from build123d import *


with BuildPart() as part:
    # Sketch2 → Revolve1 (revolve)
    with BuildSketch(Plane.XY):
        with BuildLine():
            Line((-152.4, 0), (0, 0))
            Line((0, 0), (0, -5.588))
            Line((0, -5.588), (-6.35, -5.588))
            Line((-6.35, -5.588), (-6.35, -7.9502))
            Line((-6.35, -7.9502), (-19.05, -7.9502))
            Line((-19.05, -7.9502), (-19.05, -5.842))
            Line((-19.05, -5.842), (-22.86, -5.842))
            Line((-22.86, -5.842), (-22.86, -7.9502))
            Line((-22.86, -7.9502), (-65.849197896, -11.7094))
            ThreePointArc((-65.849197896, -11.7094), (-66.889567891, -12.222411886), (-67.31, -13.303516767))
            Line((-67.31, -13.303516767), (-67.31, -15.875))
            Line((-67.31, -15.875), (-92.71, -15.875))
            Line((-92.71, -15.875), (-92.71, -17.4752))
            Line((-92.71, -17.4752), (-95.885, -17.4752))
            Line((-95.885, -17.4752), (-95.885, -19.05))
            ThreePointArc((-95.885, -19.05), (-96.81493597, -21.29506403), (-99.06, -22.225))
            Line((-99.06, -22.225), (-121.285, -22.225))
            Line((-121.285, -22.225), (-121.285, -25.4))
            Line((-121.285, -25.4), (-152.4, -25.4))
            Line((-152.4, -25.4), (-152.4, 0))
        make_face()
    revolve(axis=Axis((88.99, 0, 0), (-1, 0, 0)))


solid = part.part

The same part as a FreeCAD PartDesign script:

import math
import FreeCAD as App
import Part
import Sketcher

V = App.Vector
Q = App.Units.Quantity

doc = App.newDocument("Part")
body = doc.addObject("PartDesign::Body", "Body")

# Sketch on XY plane
sketch1 = body.newObject("Sketcher::SketchObject", "Sketch")
sketch1.AttachmentSupport = (doc.getObject("XY_Plane"), [""])
sketch1.MapMode = "FlatFace"
sketch1.addGeometry([
    Part.LineSegment(V(0, 0, 0), V(-152.4, 0, 0)),  # 0
    Part.LineSegment(V(-152.4, 0, 0), V(-152.4, -25.4, 0)),  # 1
    Part.LineSegment(V(-152.4, -25.4, 0), V(-121.285, -25.4, 0)),  # 2
    Part.LineSegment(V(-121.285, -25.4, 0), V(-121.285, -22.225, 0)),  # 3
    Part.LineSegment(V(-121.285, -22.225, 0), V(-99.06, -22.225, 0)),  # 4
    Part.ArcOfCircle(Part.Circle(V(-99.06, -19.05, 0), V(0, 0, 1), 3.175), math.radians(-90), math.radians(0)),  # 5
    Part.LineSegment(V(-95.885, -19.05, 0), V(-95.885, -17.4752, 0)),  # 6
    Part.LineSegment(V(-95.885, -17.4752, 0), V(-92.71, -17.4752, 0)),  # 7
    Part.LineSegment(V(-92.71, -17.4752, 0), V(-92.71, -15.875, 0)),  # 8
    Part.LineSegment(V(-92.71, -15.875, 0), V(-67.31, -15.875, 0)),  # 9
    Part.LineSegment(V(-67.31, -15.875, 0), V(-67.31, -13.303517, 0)),  # 10
    Part.ArcOfCircle(Part.Circle(V(-65.7098, -13.303517, 0), V(0, 0, 1), 1.6002), math.radians(94.99753), math.radians(180)),  # 11
    Part.LineSegment(V(-65.849198, -11.7094, 0), V(-22.86, -7.9502, 0)),  # 12
    Part.LineSegment(V(-22.86, -7.9502, 0), V(-22.86, -5.842, 0)),  # 13
    Part.LineSegment(V(-22.86, -5.842, 0), V(-19.05, -5.842, 0)),  # 14
    Part.LineSegment(V(-19.05, -5.842, 0), V(-19.05, -7.9502, 0)),  # 15
    Part.LineSegment(V(-19.05, -7.9502, 0), V(-6.35, -7.9502, 0)),  # 16
    Part.LineSegment(V(-6.35, -7.9502, 0), V(-6.35, -5.588, 0)),  # 17
    Part.LineSegment(V(-6.35, -5.588, 0), V(0, -5.588, 0)),  # 18
    Part.LineSegment(V(0, -5.588, 0), V(0, 0, 0)),  # 19
], False)
sketch1.addConstraint([
    Sketcher.Constraint("Coincident", 0, 2, 1, 1),
    Sketcher.Constraint("Coincident", 1, 2, 2, 1),
    Sketcher.Constraint("Coincident", 2, 2, 3, 1),
    Sketcher.Constraint("Coincident", 3, 2, 4, 1),
    Sketcher.Constraint("Tangent", 4, 2, 5, 1),
    Sketcher.Constraint("Tangent", 5, 2, 6, 1),
    Sketcher.Constraint("Coincident", 6, 2, 7, 1),
    Sketcher.Constraint("Coincident", 7, 2, 8, 1),
    Sketcher.Constraint("Coincident", 8, 2, 9, 1),
    Sketcher.Constraint("Coincident", 9, 2, 10, 1),
    Sketcher.Constraint("Tangent", 10, 2, 11, 2),
    Sketcher.Constraint("Tangent", 11, 1, 12, 1),
    Sketcher.Constraint("Coincident", 12, 2, 13, 1),
    Sketcher.Constraint("Coincident", 13, 2, 14, 1),
    Sketcher.Constraint("Coincident", 14, 2, 15, 1),
    Sketcher.Constraint("Coincident", 15, 2, 16, 1),
    Sketcher.Constraint("Coincident", 16, 2, 17, 1),
    Sketcher.Constraint("Coincident", 17, 2, 18, 1),
    Sketcher.Constraint("Coincident", 18, 2, 19, 1),
    Sketcher.Constraint("Coincident", 19, 2, 0, 1),
    Sketcher.Constraint("Horizontal", 0),
    Sketcher.Constraint("Vertical", 1),
    Sketcher.Constraint("Horizontal", 2),
    Sketcher.Constraint("Vertical", 3),
    Sketcher.Constraint("Horizontal", 4),
    Sketcher.Constraint("Vertical", 6),
    Sketcher.Constraint("Horizontal", 7),
    Sketcher.Constraint("Vertical", 8),
    Sketcher.Constraint("Horizontal", 9),
    Sketcher.Constraint("Vertical", 10),
    Sketcher.Constraint("Vertical", 13),
    Sketcher.Constraint("Horizontal", 14),
    Sketcher.Constraint("Vertical", 15),
    Sketcher.Constraint("Horizontal", 16),
    Sketcher.Constraint("Vertical", 17),
    Sketcher.Constraint("Horizontal", 18),
    Sketcher.Constraint("Vertical", 19),
    Sketcher.Constraint("Coincident", 19, 2, -1, 1),
    Sketcher.Constraint("Horizontal", 12, 2, 15, 2),
    Sketcher.Constraint("Equal", 9, 1),
    Sketcher.Constraint("Equal", 7, 3),
    Sketcher.Constraint("DistanceX", 0, 2, 0, 1, Q("6 in")),
    Sketcher.Constraint("DistanceX", 9, 1, 9, 2, Q("1 in")),
    Sketcher.Constraint("DistanceX", 16, 1, 16, 2, Q("0.5 in")),
    Sketcher.Constraint("Radius", 5, Q("0.125 in")),
    Sketcher.Constraint("Radius", 11, Q("0.063 in")),
    Sketcher.Constraint("DistanceX", 3, 2, 5, 2, Q("1 in")),
    Sketcher.Constraint("DistanceX", 14, 1, 14, 2, Q("0.15 in")),
    Sketcher.Constraint("DistanceX", 18, 1, 18, 2, Q("0.25 in")),
    Sketcher.Constraint("DistanceY", 19, 1, 19, 2, Q("0.22 in")),
    Sketcher.Constraint("DistanceX", 5, 3, -1, 1, Q("3.9 in")),
    Sketcher.Constraint("DistanceX", 10, 2, 14, 2, Q("1.9 in")),
    Sketcher.Constraint("DistanceY", 6, 1, 6, 2, Q("0.062 in")),
    Sketcher.Constraint("DistanceY", 8, 1, 8, 2, Q("0.063 in")),
    Sketcher.Constraint("DistanceY", 13, 1, 13, 2, Q("0.083 in")),
    Sketcher.Constraint("DistanceY", 17, 1, 17, 2, Q("0.093 in")),
    Sketcher.Constraint("DistanceY", 11, 1, -1, 1, Q("0.461 in")),
])
revolution = body.newObject("PartDesign::Revolution", "Revolution")
revolution.Profile = sketch1
revolution.ReferenceAxis = (sketch1, ["H_Axis"])
revolution.Angle = 360

doc.recompute()
